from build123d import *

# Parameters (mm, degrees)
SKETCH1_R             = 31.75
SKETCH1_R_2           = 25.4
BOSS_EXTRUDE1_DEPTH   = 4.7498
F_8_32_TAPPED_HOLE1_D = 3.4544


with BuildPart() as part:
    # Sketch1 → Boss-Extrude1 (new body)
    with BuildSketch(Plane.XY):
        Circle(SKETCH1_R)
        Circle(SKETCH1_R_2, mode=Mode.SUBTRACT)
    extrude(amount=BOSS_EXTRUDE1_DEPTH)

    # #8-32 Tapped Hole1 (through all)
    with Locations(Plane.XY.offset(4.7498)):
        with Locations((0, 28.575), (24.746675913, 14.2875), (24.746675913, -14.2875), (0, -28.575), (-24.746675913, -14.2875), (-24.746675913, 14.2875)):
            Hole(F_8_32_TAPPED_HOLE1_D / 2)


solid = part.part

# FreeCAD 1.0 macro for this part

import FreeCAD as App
import Part
import Sketcher

V = App.Vector
Q = App.Units.Quantity

doc = App.newDocument("Part")
body = doc.addObject("PartDesign::Body", "Body")

sketch1 = body.newObject("Sketcher::SketchObject", "Sketch")
sketch1.AttachmentSupport = (doc.getObject("XY_Plane"), [""])
sketch1.MapMode = "FlatFace"
sketch1.addGeometry([
    Part.Circle(V(0, 0, 0), V(0, 0, 1), 32),
    Part.Circle(V(0, 0, 0), V(0, 0, 1), 25),
], False)
sketch1.addConstraint([
    Sketcher.Constraint("Coincident", 0, 3, -1, 1),
    Sketcher.Constraint("Coincident", 1, 3, -1, 1),
    Sketcher.Constraint("Diameter", 1, Q("2 in")),
    Sketcher.Constraint("Diameter", 0, Q("2.5 in")),
])
pad1 = body.newObject("PartDesign::Pad", "Pad")
pad1.Profile = sketch1
pad1.Length = Q("0.187 in")

sketch2 = body.newObject("Sketcher::SketchObject", "Sketch001")
sketch2.AttachmentSupport = (doc.getObject("XY_Plane"), [""])
sketch2.MapMode = "FlatFace"
sketch2.AttachmentOffset = App.Placement(V(0, 0, 0.187 * 25.4), App.Rotation())
sketch2.addGeometry([
    Part.Circle(V(0, 28.6, 0), V(0, 0, 1), 1.7),
    Part.Circle(V(24.7, 14.3, 0), V(0, 0, 1), 1.7),
    Part.Circle(V(24.7, -14.3, 0), V(0, 0, 1), 1.7),
    Part.Circle(V(0, -28.6, 0), V(0, 0, 1), 1.7),
    Part.Circle(V(-24.7, -14.3, 0), V(0, 0, 1), 1.7),
    Part.Circle(V(-24.7, 14.3, 0), V(0, 0, 1), 1.7),
], False)
sketch2.addConstraint([
    Sketcher.Constraint("Equal", 0, 1),
    Sketcher.Constraint("Equal", 1, 2),
    Sketcher.Constraint("Equal", 2, 3),
    Sketcher.Constraint("Equal", 3, 4),
    Sketcher.Constraint("Equal", 4, 5),
    Sketcher.Constraint("Symmetric", 0, 3, 3, 3, -1, 1),
    Sketcher.Constraint("Symmetric", 1, 3, 4, 3, -1, 1),
    Sketcher.Constraint("Symmetric", 2, 3, 5, 3, -1, 1),
    Sketcher.Constraint("Symmetric", 2, 3, 4, 3, -2),
    Sketcher.Constraint("PointOnObject", 0, 3, -2),
    Sketcher.Constraint("Diameter", 0, Q("0.136 in")),
    Sketcher.Constraint("DistanceY", 3, 3, 0, 3, Q("2.25 in")),
    Sketcher.Constraint("DistanceY", -1, 1, 1, 3, Q("0.5625 in")),
    Sketcher.Constraint("DistanceX", 4, 3, 2, 3, 49.493352),
])
doc.recompute()
hole = body.newObject("PartDesign::Hole", "Hole")
hole.Profile = sketch2
hole.ThreadType = "None"
hole.Diameter = Q("0.136 in")
hole.DepthType = "ThroughAll"

doc.recompute()
